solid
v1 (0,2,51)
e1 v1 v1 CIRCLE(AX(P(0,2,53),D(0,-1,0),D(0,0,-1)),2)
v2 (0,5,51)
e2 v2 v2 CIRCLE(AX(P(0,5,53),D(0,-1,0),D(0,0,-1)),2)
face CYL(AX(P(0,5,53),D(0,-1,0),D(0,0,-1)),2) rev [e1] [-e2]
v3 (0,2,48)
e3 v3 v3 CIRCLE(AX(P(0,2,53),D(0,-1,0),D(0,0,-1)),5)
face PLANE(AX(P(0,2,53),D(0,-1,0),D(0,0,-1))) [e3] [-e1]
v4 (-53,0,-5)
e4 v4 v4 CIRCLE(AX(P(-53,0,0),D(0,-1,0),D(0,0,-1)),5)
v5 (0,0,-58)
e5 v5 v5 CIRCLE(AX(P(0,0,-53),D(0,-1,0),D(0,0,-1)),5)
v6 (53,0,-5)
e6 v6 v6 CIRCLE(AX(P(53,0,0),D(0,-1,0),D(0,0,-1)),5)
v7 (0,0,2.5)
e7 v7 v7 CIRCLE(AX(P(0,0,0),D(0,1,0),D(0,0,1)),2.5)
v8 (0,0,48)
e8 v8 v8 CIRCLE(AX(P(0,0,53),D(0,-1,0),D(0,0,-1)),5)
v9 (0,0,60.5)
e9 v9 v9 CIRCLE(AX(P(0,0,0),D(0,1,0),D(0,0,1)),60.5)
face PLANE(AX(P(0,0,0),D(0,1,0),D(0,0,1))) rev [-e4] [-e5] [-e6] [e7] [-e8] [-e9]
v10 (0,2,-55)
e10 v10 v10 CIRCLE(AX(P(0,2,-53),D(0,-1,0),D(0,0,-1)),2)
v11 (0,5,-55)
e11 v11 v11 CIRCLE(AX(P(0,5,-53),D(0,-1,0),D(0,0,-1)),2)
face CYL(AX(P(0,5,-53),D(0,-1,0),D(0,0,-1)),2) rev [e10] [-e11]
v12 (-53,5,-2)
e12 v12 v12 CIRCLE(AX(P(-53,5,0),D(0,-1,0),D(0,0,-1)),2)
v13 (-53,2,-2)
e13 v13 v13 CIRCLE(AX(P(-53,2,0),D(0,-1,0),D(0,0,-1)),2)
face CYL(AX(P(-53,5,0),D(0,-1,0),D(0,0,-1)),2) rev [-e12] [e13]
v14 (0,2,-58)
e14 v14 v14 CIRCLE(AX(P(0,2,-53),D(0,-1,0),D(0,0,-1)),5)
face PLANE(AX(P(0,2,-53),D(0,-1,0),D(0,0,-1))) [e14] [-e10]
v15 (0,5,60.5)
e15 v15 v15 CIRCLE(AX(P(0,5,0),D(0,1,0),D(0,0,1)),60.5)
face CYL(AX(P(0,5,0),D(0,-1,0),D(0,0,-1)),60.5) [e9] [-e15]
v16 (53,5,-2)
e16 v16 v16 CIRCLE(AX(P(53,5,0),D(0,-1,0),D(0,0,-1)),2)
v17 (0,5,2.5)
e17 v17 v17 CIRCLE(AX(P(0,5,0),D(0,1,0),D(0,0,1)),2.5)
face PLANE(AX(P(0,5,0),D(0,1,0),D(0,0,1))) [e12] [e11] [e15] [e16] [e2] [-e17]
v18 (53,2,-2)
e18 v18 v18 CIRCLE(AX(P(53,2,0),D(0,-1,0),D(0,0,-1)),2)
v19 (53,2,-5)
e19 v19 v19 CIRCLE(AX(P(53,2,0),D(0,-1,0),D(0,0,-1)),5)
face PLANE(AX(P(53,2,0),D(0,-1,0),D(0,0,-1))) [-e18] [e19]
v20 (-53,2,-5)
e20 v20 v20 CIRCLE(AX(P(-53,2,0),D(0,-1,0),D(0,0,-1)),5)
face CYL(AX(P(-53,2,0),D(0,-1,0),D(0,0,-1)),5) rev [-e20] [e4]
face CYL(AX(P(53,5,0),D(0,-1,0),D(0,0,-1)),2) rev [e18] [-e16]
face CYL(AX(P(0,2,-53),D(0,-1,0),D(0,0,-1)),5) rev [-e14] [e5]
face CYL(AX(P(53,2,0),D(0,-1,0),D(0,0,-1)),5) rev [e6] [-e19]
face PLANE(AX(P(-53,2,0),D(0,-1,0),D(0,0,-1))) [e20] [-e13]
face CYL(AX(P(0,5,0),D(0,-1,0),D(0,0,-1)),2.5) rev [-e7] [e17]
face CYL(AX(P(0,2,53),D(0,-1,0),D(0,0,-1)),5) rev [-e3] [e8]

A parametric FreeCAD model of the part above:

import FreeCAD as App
import Part
import Sketcher

doc = App.newDocument("Part")
body = doc.addObject("PartDesign::Body", "Body")

# Sketch on XZ plane
sketch1 = body.newObject("Sketcher::SketchObject", "Sketch")
sketch1.AttachmentSupport = (doc.getObject("XZ_Plane"), [""])
sketch1.MapMode = "FlatFace"
sketch1.addGeometry(Part.Circle(App.Vector(0, 0, 0), App.Vector(0, 0, 1), 60.5), False)
sketch1.addGeometry(Part.Circle(App.Vector(0, 0, 0), App.Vector(0, 0, 1), 2.5), False)
sketch1.addConstraint(Sketcher.Constraint("Coincident", 0, 3, -1, 1))
sketch1.addConstraint(Sketcher.Constraint("Coincident", 1, 3, -1, 1))
sketch1.addConstraint(Sketcher.Constraint("Diameter", 0, 121.0))
sketch1.addConstraint(Sketcher.Constraint("Diameter", 1, 5.0))
pad1 = body.newObject("PartDesign::Pad", "Pad")
pad1.Profile = sketch1
pad1.Length = 5
pad1.Reversed = True

# Sketch on XZ plane
sketch2 = body.newObject("Sketcher::SketchObject", "Sketch001")
sketch2.AttachmentSupport = (doc.getObject("XZ_Plane"), [""])
sketch2.MapMode = "FlatFace"
sketch2.addGeometry(Part.Circle(App.Vector(0, 53, 0), App.Vector(0, 0, 1), 5), False)
sketch2.addGeometry(Part.Circle(App.Vector(53, 0, 0), App.Vector(0, 0, 1), 5), False)
sketch2.addGeometry(Part.Circle(App.Vector(0, -53, 0), App.Vector(0, 0, 1), 5), False)
sketch2.addGeometry(Part.Circle(App.Vector(-53, 0, 0), App.Vector(0, 0, 1), 5), False)
sketch2.addConstraint(Sketcher.Constraint("Equal", 0, 1))
sketch2.addConstraint(Sketcher.Constraint("Equal", 1, 2))
sketch2.addConstraint(Sketcher.Constraint("Equal", 2, 3))
sketch2.addConstraint(Sketcher.Constraint("Symmetric", 0, 3, 2, 3, -1, 1))
sketch2.addConstraint(Sketcher.Constraint("Symmetric", 1, 3, 3, 3, -1, 1))
sketch2.addConstraint(Sketcher.Constraint("PointOnObject", 0, 3, -2))
sketch2.addConstraint(Sketcher.Constraint("PointOnObject", 1, 3, -1))
sketch2.addConstraint(Sketcher.Constraint("Diameter", 0, 10.0))
sketch2.addConstraint(Sketcher.Constraint("DistanceY", -1, 1, 0, 3, 53.0))
sketch2.addConstraint(Sketcher.Constraint("DistanceX", -1, 1, 1, 3, 53.0))
pocket1 = body.newObject("PartDesign::Pocket", "Pocket")
pocket1.Profile = sketch2
pocket1.Length = 2

# Sketch on XZ plane
sketch3 = body.newObject("Sketcher::SketchObject", "Sketch002")
sketch3.AttachmentSupport = (doc.getObject("XZ_Plane"), [""])
sketch3.MapMode = "FlatFace"
sketch3.AttachmentOffset = App.Placement(App.Vector(0, 0, -2), App.Rotation())
sketch3.addGeometry(Part.Circle(App.Vector(0, 53, 0), App.Vector(0, 0, 1), 2), False)
sketch3.addGeometry(Part.Circle(App.Vector(53, 0, 0), App.Vector(0, 0, 1), 2), False)
sketch3.addGeometry(Part.Circle(App.Vector(0, -53, 0), App.Vector(0, 0, 1), 2), False)
sketch3.addGeometry(Part.Circle(App.Vector(-53, 0, 0), App.Vector(0, 0, 1), 2), False)
sketch3.addConstraint(Sketcher.Constraint("Equal", 0, 1))
sketch3.addConstraint(Sketcher.Constraint("Equal", 1, 2))
sketch3.addConstraint(Sketcher.Constraint("Equal", 2, 3))
sketch3.addConstraint(Sketcher.Constraint("Symmetric", 0, 3, 2, 3, -1, 1))
sketch3.addConstraint(Sketcher.Constraint("Symmetric", 1, 3, 3, 3, -1, 1))
sketch3.addConstraint(Sketcher.Constraint("PointOnObject", 0, 3, -2))
sketch3.addConstraint(Sketcher.Constraint("PointOnObject", 1, 3, -1))
sketch3.addConstraint(Sketcher.Constraint("Diameter", 0, 4.0))
sketch3.addConstraint(Sketcher.Constraint("DistanceY", -1, 1, 0, 3, 53.0))
sketch3.addConstraint(Sketcher.Constraint("DistanceX", -1, 1, 1, 3, 53.0))
pocket2 = body.newObject("PartDesign::Pocket", "Pocket001")
pocket2.Profile = sketch3
pocket2.Type = "ThroughAll"

doc.recompute()
